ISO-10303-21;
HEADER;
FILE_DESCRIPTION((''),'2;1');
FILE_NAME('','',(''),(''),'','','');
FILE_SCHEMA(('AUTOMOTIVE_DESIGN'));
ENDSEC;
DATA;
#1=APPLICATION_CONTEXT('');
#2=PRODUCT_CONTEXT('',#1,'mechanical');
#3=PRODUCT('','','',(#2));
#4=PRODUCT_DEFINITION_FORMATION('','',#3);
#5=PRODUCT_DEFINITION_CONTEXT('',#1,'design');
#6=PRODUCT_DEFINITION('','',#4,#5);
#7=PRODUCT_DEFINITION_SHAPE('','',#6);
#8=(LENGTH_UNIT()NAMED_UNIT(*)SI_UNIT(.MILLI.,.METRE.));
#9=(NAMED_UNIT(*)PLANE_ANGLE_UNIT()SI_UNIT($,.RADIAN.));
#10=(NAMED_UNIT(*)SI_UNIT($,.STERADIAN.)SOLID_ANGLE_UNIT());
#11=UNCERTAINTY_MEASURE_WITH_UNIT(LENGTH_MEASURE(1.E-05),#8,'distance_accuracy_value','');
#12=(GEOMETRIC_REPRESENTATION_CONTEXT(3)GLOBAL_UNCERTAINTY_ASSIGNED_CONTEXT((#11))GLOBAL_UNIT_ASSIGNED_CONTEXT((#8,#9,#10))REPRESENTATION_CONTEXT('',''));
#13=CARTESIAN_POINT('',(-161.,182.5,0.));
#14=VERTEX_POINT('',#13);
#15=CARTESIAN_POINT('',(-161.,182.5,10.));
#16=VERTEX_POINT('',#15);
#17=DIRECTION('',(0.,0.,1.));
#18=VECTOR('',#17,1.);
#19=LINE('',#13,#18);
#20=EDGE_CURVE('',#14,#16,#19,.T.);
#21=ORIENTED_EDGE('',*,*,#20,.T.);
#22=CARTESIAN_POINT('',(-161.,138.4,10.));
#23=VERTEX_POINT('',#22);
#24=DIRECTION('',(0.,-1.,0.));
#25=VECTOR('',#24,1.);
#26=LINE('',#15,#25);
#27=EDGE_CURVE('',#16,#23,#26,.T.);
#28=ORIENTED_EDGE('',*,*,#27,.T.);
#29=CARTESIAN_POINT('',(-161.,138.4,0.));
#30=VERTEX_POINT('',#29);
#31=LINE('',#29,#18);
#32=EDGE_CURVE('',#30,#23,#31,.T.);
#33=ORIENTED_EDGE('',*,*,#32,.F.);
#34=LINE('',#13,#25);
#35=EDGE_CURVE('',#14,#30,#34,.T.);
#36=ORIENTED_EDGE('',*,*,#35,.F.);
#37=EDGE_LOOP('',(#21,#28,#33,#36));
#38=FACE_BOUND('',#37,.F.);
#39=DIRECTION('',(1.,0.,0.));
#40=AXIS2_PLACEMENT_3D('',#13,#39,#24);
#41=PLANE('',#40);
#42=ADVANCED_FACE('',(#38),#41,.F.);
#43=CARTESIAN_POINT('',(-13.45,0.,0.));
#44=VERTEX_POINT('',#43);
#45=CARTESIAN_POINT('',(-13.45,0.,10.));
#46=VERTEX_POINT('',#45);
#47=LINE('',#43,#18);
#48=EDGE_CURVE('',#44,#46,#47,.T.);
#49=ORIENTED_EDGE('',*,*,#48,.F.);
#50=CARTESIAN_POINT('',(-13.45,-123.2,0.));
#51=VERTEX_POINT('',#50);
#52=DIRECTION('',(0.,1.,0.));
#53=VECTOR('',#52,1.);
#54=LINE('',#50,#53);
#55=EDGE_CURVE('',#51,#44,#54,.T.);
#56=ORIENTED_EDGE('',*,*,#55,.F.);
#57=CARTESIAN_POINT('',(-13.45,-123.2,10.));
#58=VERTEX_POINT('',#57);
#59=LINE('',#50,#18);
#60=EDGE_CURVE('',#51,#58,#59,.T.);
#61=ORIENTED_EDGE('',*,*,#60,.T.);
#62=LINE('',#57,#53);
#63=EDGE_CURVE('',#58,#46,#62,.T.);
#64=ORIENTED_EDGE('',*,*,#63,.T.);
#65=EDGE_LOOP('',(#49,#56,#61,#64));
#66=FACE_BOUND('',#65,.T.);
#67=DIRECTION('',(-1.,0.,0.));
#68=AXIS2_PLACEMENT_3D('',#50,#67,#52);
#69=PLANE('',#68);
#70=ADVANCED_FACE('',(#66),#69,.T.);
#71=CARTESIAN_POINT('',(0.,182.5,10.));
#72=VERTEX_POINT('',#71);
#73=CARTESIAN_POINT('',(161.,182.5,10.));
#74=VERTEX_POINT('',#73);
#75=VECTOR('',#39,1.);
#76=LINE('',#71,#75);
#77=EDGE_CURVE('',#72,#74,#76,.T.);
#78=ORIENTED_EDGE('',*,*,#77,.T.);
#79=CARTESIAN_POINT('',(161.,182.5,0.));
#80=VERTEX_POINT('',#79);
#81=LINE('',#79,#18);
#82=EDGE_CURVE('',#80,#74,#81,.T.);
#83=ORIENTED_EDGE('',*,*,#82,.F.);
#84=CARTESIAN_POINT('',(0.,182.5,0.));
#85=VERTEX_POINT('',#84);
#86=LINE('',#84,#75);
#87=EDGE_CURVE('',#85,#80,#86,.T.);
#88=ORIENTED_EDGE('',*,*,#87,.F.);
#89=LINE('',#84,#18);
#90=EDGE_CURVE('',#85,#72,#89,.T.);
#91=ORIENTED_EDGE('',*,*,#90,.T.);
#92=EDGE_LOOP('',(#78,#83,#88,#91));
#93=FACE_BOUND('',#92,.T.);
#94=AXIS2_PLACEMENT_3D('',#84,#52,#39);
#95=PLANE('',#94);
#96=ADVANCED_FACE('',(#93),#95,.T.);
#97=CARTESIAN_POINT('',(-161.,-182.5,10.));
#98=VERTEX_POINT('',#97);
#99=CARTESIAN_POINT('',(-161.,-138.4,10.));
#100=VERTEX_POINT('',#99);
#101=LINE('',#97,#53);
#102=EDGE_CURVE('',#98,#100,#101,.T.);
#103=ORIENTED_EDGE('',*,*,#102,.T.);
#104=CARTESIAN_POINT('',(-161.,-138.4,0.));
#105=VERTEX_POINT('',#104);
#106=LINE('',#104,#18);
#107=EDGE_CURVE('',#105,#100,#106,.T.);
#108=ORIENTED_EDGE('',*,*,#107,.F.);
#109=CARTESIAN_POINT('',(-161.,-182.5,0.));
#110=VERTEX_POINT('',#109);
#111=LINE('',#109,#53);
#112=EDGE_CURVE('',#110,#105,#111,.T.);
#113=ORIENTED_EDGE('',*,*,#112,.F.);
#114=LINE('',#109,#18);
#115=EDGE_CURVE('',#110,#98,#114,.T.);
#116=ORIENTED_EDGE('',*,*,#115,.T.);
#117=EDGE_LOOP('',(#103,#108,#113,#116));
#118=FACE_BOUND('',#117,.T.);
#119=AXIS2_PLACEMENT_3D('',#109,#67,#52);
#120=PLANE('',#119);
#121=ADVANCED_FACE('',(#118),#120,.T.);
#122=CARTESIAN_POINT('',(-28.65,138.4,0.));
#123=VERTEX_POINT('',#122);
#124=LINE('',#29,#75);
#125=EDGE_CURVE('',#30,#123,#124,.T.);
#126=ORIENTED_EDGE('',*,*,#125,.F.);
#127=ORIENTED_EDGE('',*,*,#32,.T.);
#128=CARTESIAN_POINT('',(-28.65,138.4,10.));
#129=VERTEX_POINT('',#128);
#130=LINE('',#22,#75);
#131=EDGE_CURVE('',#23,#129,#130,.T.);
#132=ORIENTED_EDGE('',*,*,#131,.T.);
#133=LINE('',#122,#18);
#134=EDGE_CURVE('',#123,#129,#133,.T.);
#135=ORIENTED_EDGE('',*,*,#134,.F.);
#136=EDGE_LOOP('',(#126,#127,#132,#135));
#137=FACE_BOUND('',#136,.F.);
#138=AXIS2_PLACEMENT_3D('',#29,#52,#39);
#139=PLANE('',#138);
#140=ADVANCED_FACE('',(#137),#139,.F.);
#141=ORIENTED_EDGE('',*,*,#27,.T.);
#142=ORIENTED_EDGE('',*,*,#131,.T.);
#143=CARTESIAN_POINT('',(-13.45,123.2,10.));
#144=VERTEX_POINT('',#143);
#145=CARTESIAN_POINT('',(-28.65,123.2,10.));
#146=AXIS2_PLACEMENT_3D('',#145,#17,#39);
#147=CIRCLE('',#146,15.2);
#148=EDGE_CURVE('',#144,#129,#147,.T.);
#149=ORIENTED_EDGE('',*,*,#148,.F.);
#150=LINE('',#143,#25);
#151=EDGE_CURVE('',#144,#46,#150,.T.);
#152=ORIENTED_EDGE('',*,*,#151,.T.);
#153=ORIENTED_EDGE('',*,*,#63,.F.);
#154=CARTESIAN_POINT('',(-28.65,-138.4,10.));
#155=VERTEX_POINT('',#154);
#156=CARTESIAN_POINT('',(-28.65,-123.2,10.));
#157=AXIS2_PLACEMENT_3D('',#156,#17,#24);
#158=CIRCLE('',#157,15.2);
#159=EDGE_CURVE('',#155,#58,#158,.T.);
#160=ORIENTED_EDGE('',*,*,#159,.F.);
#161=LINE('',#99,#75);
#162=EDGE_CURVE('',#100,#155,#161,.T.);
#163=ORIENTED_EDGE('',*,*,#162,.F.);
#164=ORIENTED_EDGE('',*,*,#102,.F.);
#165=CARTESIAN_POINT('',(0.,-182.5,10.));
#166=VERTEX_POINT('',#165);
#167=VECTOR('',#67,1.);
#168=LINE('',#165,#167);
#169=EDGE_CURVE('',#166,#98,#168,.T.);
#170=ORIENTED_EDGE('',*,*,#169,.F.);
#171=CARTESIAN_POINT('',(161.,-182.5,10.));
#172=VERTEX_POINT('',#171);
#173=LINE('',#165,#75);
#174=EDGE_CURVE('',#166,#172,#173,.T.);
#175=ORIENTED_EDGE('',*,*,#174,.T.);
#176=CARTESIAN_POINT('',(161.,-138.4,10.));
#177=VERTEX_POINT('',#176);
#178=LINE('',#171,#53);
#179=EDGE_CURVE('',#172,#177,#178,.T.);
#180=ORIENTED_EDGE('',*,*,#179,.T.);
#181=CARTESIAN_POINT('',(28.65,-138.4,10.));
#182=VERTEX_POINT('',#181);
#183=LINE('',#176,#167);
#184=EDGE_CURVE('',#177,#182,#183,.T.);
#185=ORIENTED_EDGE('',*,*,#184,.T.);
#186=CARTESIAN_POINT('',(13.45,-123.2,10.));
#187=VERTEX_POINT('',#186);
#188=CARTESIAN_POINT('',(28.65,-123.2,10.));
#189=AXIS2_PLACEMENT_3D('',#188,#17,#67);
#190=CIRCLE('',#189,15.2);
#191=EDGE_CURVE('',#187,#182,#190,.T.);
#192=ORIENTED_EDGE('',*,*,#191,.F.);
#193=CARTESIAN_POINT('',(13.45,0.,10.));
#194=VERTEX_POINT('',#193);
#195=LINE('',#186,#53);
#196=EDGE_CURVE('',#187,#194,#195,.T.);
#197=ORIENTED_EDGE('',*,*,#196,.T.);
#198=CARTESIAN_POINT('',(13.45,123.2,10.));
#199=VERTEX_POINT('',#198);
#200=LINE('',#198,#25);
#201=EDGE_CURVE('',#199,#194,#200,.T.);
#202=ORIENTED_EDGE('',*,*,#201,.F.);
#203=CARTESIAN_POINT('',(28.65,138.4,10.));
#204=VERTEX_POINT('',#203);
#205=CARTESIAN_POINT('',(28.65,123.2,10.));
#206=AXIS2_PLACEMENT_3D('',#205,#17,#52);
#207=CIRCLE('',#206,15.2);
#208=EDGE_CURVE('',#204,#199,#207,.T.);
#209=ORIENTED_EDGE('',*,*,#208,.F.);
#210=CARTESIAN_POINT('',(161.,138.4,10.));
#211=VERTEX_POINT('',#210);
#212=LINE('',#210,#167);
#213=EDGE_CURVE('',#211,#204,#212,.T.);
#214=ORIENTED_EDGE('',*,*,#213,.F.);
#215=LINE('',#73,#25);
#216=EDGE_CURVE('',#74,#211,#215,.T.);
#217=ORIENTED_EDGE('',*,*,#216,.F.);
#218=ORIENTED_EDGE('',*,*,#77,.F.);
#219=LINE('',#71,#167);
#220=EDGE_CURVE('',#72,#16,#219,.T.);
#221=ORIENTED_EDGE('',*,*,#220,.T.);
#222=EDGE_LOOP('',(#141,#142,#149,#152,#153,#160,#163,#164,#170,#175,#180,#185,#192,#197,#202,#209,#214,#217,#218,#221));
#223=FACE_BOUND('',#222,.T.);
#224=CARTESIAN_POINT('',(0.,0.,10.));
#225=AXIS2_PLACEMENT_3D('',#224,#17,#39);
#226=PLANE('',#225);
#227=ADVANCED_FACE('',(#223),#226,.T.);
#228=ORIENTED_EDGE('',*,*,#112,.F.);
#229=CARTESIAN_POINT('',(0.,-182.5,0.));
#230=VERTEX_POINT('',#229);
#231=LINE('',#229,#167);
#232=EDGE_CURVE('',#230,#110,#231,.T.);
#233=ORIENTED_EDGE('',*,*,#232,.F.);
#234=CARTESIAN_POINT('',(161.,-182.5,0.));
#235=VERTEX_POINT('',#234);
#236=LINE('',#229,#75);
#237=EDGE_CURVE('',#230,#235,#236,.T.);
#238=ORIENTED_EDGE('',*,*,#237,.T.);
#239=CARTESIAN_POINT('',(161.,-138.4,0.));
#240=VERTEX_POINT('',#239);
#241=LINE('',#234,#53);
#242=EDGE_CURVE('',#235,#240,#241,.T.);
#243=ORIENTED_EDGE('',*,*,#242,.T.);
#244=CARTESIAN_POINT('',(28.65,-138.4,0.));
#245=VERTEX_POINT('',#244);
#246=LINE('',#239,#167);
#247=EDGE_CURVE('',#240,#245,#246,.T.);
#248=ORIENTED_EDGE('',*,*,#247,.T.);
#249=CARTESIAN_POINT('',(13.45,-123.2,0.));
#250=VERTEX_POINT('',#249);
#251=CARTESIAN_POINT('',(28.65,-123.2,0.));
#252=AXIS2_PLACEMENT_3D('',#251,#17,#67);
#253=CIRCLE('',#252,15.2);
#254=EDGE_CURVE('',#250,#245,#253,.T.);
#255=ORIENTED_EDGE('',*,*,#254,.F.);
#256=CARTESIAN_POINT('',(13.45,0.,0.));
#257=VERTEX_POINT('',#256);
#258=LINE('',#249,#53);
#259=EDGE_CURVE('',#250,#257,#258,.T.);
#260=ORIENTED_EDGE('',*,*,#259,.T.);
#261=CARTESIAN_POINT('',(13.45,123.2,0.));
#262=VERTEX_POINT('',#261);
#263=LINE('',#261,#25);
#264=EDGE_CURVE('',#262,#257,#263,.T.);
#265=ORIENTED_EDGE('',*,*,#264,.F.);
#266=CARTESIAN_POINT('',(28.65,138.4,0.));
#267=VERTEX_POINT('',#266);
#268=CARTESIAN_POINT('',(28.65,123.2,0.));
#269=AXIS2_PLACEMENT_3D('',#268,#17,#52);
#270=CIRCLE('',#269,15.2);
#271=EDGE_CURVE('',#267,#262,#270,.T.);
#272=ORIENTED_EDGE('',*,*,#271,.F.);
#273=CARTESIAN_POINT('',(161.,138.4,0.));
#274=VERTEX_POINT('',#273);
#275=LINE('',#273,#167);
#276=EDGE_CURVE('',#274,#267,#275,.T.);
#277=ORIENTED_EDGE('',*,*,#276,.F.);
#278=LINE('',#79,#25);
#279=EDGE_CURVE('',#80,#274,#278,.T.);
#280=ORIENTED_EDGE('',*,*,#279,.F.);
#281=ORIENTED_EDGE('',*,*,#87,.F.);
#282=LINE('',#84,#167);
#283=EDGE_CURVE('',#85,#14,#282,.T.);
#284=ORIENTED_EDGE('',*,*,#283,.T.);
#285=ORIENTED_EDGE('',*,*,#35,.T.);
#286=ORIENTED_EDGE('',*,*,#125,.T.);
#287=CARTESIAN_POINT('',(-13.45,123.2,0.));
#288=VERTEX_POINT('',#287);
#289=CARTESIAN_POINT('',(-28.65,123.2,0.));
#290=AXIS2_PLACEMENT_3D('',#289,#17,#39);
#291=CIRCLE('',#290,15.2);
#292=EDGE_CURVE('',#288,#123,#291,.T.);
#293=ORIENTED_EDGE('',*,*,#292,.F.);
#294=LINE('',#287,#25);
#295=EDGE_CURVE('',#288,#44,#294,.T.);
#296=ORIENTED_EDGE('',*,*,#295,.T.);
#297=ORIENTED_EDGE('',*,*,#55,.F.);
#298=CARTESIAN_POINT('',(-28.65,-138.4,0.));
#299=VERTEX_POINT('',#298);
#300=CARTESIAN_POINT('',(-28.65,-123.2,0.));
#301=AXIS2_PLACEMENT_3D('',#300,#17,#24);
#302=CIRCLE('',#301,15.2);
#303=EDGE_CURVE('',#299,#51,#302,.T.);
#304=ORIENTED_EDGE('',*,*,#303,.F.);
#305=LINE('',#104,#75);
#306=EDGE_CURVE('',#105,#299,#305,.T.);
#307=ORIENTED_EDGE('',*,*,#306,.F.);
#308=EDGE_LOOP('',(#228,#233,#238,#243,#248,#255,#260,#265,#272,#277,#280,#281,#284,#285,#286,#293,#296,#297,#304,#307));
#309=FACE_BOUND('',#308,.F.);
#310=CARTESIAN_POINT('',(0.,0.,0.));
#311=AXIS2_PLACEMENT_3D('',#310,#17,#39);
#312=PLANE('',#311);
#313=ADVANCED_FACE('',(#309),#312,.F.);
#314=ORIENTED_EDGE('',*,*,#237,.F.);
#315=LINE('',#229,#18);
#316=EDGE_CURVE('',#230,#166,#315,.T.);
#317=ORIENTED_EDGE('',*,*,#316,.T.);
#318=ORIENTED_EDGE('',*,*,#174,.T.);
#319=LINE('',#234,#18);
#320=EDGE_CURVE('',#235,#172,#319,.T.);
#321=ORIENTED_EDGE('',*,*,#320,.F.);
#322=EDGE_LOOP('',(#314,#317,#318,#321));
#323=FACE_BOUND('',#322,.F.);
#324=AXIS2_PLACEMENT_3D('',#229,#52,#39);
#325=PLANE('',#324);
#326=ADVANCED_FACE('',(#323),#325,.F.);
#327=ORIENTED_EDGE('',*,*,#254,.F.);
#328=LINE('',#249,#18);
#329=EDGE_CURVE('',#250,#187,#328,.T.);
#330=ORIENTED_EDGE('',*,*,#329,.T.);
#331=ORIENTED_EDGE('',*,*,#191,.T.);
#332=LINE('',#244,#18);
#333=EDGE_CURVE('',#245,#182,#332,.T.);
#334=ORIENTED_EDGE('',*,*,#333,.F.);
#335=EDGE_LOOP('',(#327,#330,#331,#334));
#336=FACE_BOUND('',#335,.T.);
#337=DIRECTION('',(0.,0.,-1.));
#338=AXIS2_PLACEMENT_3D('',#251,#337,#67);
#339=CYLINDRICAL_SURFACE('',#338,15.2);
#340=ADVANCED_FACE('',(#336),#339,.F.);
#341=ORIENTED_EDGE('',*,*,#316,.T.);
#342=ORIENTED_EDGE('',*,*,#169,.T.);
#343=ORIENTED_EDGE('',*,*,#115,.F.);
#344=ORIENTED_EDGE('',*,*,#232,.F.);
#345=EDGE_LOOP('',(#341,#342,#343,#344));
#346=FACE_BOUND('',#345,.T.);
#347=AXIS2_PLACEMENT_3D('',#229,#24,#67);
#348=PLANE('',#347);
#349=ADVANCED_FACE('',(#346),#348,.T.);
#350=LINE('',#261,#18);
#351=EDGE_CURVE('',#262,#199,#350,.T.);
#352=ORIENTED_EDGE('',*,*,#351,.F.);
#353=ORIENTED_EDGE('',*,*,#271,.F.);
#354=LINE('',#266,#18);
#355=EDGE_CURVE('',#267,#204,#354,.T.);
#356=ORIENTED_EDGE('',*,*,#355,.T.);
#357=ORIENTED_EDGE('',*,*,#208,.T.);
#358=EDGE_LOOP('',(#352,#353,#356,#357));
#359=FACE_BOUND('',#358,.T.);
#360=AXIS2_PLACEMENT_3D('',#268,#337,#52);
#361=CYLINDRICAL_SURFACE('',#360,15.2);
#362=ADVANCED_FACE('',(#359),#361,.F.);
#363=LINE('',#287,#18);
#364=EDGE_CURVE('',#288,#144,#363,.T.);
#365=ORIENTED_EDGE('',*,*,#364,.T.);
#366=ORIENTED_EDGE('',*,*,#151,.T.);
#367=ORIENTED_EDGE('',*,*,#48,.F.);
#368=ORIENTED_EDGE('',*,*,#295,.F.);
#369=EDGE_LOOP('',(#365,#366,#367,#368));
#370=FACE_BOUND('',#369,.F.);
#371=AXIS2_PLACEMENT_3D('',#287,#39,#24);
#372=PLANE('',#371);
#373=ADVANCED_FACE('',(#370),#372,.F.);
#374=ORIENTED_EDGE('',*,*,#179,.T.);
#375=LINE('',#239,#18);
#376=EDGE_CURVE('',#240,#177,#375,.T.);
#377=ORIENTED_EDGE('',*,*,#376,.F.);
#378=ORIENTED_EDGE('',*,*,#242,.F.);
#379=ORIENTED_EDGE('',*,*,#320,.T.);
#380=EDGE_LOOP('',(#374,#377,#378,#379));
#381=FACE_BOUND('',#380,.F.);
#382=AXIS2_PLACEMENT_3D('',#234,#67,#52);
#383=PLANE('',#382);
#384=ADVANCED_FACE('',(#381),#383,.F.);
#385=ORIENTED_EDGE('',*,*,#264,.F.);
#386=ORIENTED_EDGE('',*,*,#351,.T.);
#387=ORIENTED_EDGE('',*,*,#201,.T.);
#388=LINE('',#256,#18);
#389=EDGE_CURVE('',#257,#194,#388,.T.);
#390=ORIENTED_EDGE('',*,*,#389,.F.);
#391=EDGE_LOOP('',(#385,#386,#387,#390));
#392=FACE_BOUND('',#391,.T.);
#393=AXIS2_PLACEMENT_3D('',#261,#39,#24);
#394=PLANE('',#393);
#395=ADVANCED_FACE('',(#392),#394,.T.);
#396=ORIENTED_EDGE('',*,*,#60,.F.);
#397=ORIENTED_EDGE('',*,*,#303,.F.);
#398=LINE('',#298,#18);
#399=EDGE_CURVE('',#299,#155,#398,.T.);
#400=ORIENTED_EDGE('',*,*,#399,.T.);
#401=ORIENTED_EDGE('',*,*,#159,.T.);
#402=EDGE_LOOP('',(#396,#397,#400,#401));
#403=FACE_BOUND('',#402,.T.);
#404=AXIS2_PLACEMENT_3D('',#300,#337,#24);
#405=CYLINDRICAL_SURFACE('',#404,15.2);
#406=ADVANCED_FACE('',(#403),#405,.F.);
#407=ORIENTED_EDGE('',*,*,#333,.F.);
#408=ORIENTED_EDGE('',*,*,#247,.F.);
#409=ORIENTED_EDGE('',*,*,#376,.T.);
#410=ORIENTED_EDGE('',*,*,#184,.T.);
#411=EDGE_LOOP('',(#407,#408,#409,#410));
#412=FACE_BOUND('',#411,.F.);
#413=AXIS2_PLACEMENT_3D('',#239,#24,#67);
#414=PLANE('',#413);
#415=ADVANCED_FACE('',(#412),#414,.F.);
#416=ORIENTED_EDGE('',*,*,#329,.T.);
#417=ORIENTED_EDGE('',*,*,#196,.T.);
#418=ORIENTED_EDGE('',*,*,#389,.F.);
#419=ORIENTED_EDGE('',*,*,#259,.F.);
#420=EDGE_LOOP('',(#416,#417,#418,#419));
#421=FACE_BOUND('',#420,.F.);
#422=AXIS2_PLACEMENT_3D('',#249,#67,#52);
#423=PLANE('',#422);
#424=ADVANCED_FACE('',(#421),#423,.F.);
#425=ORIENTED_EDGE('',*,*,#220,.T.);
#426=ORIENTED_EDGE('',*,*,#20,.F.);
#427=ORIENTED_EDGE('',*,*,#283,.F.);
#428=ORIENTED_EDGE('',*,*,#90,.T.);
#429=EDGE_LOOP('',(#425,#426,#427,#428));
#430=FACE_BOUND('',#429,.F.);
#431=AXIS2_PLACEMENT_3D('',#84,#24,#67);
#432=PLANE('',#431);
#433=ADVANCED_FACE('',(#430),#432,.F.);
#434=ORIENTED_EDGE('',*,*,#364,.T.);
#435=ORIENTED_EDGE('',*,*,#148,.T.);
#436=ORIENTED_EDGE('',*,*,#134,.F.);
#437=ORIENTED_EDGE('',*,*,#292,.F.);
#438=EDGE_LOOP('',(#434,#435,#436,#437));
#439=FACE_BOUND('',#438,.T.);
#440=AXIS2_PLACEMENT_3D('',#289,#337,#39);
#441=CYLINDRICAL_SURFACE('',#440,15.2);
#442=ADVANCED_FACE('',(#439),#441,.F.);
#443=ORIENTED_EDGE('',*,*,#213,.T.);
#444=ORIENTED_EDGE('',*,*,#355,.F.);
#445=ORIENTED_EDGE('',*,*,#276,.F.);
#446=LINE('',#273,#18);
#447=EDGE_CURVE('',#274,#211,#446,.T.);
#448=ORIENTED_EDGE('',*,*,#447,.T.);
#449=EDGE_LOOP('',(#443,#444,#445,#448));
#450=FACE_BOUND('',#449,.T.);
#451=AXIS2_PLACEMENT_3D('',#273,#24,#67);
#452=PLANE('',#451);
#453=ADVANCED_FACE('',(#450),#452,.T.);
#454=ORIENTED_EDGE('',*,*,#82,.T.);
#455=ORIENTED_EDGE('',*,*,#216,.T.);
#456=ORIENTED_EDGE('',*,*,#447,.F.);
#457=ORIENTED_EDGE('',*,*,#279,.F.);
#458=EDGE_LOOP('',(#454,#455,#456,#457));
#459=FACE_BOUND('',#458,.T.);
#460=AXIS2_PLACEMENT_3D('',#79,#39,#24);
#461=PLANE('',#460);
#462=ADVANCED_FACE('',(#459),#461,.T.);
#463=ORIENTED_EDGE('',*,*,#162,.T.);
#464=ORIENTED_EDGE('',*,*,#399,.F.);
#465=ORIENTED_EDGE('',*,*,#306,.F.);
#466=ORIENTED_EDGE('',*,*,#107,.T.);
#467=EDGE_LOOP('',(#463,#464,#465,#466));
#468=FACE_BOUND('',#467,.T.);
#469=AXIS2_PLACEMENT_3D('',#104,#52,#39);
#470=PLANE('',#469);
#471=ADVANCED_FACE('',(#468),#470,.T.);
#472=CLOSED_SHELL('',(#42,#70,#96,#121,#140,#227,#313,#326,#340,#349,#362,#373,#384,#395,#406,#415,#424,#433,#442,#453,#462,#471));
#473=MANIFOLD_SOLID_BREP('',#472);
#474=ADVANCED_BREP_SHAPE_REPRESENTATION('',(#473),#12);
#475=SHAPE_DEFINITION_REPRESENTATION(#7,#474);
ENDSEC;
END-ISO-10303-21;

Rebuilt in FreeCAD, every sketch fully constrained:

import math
import FreeCAD as App
import Part
import Sketcher

V = App.Vector
Q = App.Units.Quantity

doc = App.newDocument("Part")
body = doc.addObject("PartDesign::Body", "Body")

# Sketch on XY plane
sketch1 = body.newObject("Sketcher::SketchObject", "Sketch")
sketch1.AttachmentSupport = (doc.getObject("XY_Plane"), [""])
sketch1.MapMode = "FlatFace"
sketch1.addGeometry(Part.LineSegment(V(-161, -138, 0), V(-161, -182, 0)), False)
sketch1.addGeometry(Part.LineSegment(V(-161, -182, 0), V(161, -182, 0)), False)
sketch1.addGeometry(Part.LineSegment(V(161, -182, 0), V(161, -138, 0)), False)
sketch1.addGeometry(Part.LineSegment(V(161, -138, 0), V(29, -138, 0)), False)
sketch1.addGeometry(Part.ArcOfCircle(Part.Circle(V(29, -123, 0), V(0, 0, 1), 15), math.radians(180), math.radians(270)), False)
sketch1.addGeometry(Part.LineSegment(V(13, -123, 0), V(13, 123, 0)), False)
sketch1.addGeometry(Part.ArcOfCircle(Part.Circle(V(29, 123, 0), V(0, 0, 1), 15), math.radians(90), math.radians(180)), False)
sketch1.addGeometry(Part.LineSegment(V(29, 138, 0), V(161, 138, 0)), False)
sketch1.addGeometry(Part.LineSegment(V(161, 138, 0), V(161, 182, 0)), False)
sketch1.addGeometry(Part.LineSegment(V(161, 182, 0), V(-161, 182, 0)), False)
sketch1.addGeometry(Part.LineSegment(V(-161, 182, 0), V(-161, 138, 0)), False)
sketch1.addGeometry(Part.LineSegment(V(-161, 138, 0), V(-29, 138, 0)), False)
sketch1.addGeometry(Part.ArcOfCircle(Part.Circle(V(-29, 123, 0), V(0, 0, 1), 15), math.radians(0), math.radians(90)), False)
sketch1.addGeometry(Part.LineSegment(V(-13, 123, 0), V(-13, -123, 0)), False)
sketch1.addGeometry(Part.ArcOfCircle(Part.Circle(V(-29, -123, 0), V(0, 0, 1), 15), math.radians(-90), math.radians(0)), False)
sketch1.addGeometry(Part.LineSegment(V(-29, -138, 0), V(-161, -138, 0)), False)
sketch1.addConstraint(Sketcher.Constraint("Coincident", 0, 2, 1, 1))
sketch1.addConstraint(Sketcher.Constraint("Coincident", 1, 2, 2, 1))
sketch1.addConstraint(Sketcher.Constraint("Coincident", 2, 2, 3, 1))
sketch1.addConstraint(Sketcher.Constraint("Tangent", 3, 2, 4, 2))
sketch1.addConstraint(Sketcher.Constraint("Tangent", 4, 1, 5, 1))
sketch1.addConstraint(Sketcher.Constraint("Tangent", 5, 2, 6, 2))
sketch1.addConstraint(Sketcher.Constraint("Tangent", 6, 1, 7, 1))
sketch1.addConstraint(Sketcher.Constraint("Coincident", 7, 2, 8, 1))
sketch1.addConstraint(Sketcher.Constraint("Coincident", 8, 2, 9, 1))
sketch1.addConstraint(Sketcher.Constraint("Coincident", 9, 2, 10, 1))
sketch1.addConstraint(Sketcher.Constraint("Coincident", 10, 2, 11, 1))
sketch1.addConstraint(Sketcher.Constraint("Tangent", 11, 2, 12, 2))
sketch1.addConstraint(Sketcher.Constraint("Tangent", 12, 1, 13, 1))
sketch1.addConstraint(Sketcher.Constraint("Tangent", 13, 2, 14, 2))
sketch1.addConstraint(Sketcher.Constraint("Tangent", 14, 1, 15, 1))
sketch1.addConstraint(Sketcher.Constraint("Coincident", 15, 2, 0, 1))
sketch1.addConstraint(Sketcher.Constraint("Vertical", 0))
sketch1.addConstraint(Sketcher.Constraint("Horizontal", 1))
sketch1.addConstraint(Sketcher.Constraint("Vertical", 2))
sketch1.addConstraint(Sketcher.Constraint("Horizontal", 3))
sketch1.addConstraint(Sketcher.Constraint("Vertical", 5))
sketch1.addConstraint(Sketcher.Constraint("Horizontal", 7))
sketch1.addConstraint(Sketcher.Constraint("Vertical", 8))
sketch1.addConstraint(Sketcher.Constraint("Horizontal", 9))
sketch1.addConstraint(Sketcher.Constraint("Vertical", 10))
sketch1.addConstraint(Sketcher.Constraint("Horizontal", 11))
sketch1.addConstraint(Sketcher.Constraint("Vertical", 13))
sketch1.addConstraint(Sketcher.Constraint("Horizontal", 15))
sketch1.addConstraint(Sketcher.Constraint("Equal", 4, 6))
sketch1.addConstraint(Sketcher.Constraint("Equal", 6, 12))
sketch1.addConstraint(Sketcher.Constraint("Equal", 12, 14))
sketch1.addConstraint(Sketcher.Constraint("Symmetric", 4, 3, 12, 3, -1, 1))
sketch1.addConstraint(Sketcher.Constraint("Symmetric", 0, 2, 8, 2, -1, 1))
sketch1.addConstraint(Sketcher.Constraint("Symmetric", 7, 2, 10, 2, -2))
sketch1.addConstraint(Sketcher.Constraint("Symmetric", 2, 2, 15, 2, -2))
sketch1.addConstraint(Sketcher.Constraint("Radius", 4, Q("15.2 mm")))
sketch1.addConstraint(Sketcher.Constraint("DistanceY", 0, 2, 0, 1, Q("44.1 mm")))
sketch1.addConstraint(Sketcher.Constraint("DistanceX", 0, 2, -1, 1, Q("161 mm")))
sketch1.addConstraint(Sketcher.Constraint("DistanceY", 0, 2, -1, 1, Q("182.5 mm")))
sketch1.addConstraint(Sketcher.Constraint("DistanceX", -1, 1, 4, 1, Q("13.45 mm")))
pad1 = body.newObject("PartDesign::Pad", "Pad")
pad1.Profile = sketch1
pad1.Length = 10

doc.recompute()
